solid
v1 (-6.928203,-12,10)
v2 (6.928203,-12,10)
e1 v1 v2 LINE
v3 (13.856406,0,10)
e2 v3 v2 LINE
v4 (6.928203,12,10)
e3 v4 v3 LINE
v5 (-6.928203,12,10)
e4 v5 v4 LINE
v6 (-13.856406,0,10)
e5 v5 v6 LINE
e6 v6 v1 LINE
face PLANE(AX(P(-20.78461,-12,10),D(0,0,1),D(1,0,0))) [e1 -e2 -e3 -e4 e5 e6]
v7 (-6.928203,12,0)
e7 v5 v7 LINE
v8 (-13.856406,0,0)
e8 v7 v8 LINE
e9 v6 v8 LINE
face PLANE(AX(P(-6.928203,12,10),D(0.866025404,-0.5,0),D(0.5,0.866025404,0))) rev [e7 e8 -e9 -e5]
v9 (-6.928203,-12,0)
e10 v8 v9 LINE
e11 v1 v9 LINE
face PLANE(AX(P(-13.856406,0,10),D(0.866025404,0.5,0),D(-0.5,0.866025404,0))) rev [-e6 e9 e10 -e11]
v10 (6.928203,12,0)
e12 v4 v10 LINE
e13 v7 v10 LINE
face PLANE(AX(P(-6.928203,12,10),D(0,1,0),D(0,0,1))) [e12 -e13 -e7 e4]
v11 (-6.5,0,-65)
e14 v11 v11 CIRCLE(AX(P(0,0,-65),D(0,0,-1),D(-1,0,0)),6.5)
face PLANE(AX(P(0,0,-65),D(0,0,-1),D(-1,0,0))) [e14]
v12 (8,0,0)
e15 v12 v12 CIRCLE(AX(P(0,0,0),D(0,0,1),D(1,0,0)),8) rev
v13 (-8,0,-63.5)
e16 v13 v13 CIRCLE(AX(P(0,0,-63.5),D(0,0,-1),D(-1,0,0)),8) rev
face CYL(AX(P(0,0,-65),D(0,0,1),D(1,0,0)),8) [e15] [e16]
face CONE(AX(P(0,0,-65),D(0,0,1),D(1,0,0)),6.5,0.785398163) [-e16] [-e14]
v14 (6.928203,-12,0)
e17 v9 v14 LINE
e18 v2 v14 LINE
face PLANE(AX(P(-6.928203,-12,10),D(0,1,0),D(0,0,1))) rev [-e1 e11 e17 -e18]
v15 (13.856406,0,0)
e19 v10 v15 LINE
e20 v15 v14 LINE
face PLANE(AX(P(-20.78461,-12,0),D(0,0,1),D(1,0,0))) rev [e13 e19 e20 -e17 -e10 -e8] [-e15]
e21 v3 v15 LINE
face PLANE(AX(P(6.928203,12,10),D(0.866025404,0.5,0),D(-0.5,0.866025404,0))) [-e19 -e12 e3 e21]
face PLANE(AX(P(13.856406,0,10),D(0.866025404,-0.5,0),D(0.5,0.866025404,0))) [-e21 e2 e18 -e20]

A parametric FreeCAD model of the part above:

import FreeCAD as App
import Part
import Sketcher
Q = App.Units.Quantity


def edges_at(feature, points):
    """Names of the edges that pass closest to the given points."""
    edges = feature.Shape.Edges
    near = lambda p: min(range(len(edges)), key=lambda i: edges[i].distToShape(Part.Vertex(*p))[0])
    return sorted({f"Edge{near(p) + 1}" for p in points})

doc = App.newDocument("Part")
body = doc.addObject("PartDesign::Body", "Body")

sketch1 = body.newObject("Sketcher::SketchObject", "Sketch")
sketch1.AttachmentSupport = (doc.getObject("XY_Plane"), [""])
sketch1.MapMode = "FlatFace"
sketch1.addGeometry(Part.LineSegment(App.Vector(6.928203, 12, 0), App.Vector(-6.928203, 12, 0)), False)
sketch1.addGeometry(Part.LineSegment(App.Vector(-6.928203, 12, 0), App.Vector(-13.856406, 0, 0)), False)
sketch1.addGeometry(Part.LineSegment(App.Vector(-13.856406, 0, 0), App.Vector(-6.928203, -12, 0)), False)
sketch1.addGeometry(Part.LineSegment(App.Vector(-6.928203, -12, 0), App.Vector(6.928203, -12, 0)), False)
sketch1.addGeometry(Part.LineSegment(App.Vector(6.928203, -12, 0), App.Vector(13.856406, 0, 0)), False)
sketch1.addGeometry(Part.LineSegment(App.Vector(13.856406, 0, 0), App.Vector(6.928203, 12, 0)), False)
sketch1.addConstraint(Sketcher.Constraint("Coincident", 0, 2, 1, 1))
sketch1.addConstraint(Sketcher.Constraint("Coincident", 1, 2, 2, 1))
sketch1.addConstraint(Sketcher.Constraint("Coincident", 2, 2, 3, 1))
sketch1.addConstraint(Sketcher.Constraint("Coincident", 3, 2, 4, 1))
sketch1.addConstraint(Sketcher.Constraint("Coincident", 4, 2, 5, 1))
sketch1.addConstraint(Sketcher.Constraint("Coincident", 5, 2, 0, 1))
sketch1.addConstraint(Sketcher.Constraint("Horizontal", 0))
sketch1.addConstraint(Sketcher.Constraint("Horizontal", 3))
sketch1.addConstraint(Sketcher.Constraint("Symmetric", 0, 2, 3, 2, -1, 1))
sketch1.addConstraint(Sketcher.Constraint("Symmetric", 1, 2, 4, 2, -1, 1))
sketch1.addConstraint(Sketcher.Constraint("PointOnObject", 1, 2, -1))
sketch1.addConstraint(Sketcher.Constraint("Parallel", 2, 5))
sketch1.addConstraint(Sketcher.Constraint("Vertical", 0, 2, 2, 2))
sketch1.addConstraint(Sketcher.Constraint("Angle", 1, Q("-120 deg")))
sketch1.addConstraint(Sketcher.Constraint("DistanceY", -1, 1, 0, 2, Q("12 mm")))
sketch1.addConstraint(Sketcher.Constraint("DistanceX", 0, 2, 0, 1, Q("13.856406 mm")))
pad1 = body.newObject("PartDesign::Pad", "Pad")
pad1.Profile = sketch1
pad1.Length = 10

sketch2 = body.newObject("Sketcher::SketchObject", "Sketch001")
sketch2.AttachmentSupport = (doc.getObject("XY_Plane"), [""])
sketch2.MapMode = "FlatFace"
sketch2.addGeometry(Part.Circle(App.Vector(0, 0, 0), App.Vector(0, 0, 1), 8), False)
sketch2.addConstraint(Sketcher.Constraint("Coincident", 0, 3, -1, 1))
sketch2.addConstraint(Sketcher.Constraint("Diameter", 0, Q("16 mm")))
pad2 = body.newObject("PartDesign::Pad", "Pad001")
pad2.Profile = sketch2
pad2.Length = 65
pad2.Reversed = True
doc.recompute()

chamfer = body.newObject("PartDesign::Chamfer", "Chamfer")
chamfer.Base = (pad2, edges_at(pad2, [(-8, 0, -65)]))
chamfer.Size = 1.5

doc.recompute()
